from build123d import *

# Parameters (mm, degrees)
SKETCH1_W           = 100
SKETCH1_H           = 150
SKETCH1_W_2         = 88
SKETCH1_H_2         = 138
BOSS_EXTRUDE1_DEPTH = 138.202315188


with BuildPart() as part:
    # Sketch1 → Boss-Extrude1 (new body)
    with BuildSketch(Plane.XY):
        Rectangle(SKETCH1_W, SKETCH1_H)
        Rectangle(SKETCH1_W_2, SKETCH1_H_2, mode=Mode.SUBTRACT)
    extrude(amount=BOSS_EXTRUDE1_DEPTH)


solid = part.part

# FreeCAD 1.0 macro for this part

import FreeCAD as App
import Part
import Sketcher

V = App.Vector


def add_polygon(sketch, points):
    """Adds a closed chain of lines whose ends are joined by coincident constraints."""
    first, n = sketch.GeometryCount, len(points)
    for a, b in zip(points, points[1:] + points[:1]):
        sketch.addGeometry(Part.LineSegment(App.Vector(*a, 0), App.Vector(*b, 0)), False)
    for i in range(n):
        sketch.addConstraint(Sketcher.Constraint("Coincident", first + i, 2, first + (i + 1) % n, 1))

doc = App.newDocument("Part")
body = doc.addObject("PartDesign::Body", "Body")

# Sketch on XY plane
sketch1 = body.newObject("Sketcher::SketchObject", "Sketch")
sketch1.AttachmentSupport = (doc.getObject("XY_Plane"), [""])
sketch1.MapMode = "FlatFace"
add_polygon(sketch1, [(-50, 75), (-50, -75), (50, -75), (50, 75)])  # lines 0-3
add_polygon(sketch1, [(44, -69), (-44, -69), (-44, 69), (44, 69)])  # lines 4-7
sketch1.addConstraint([
    Sketcher.Constraint("Vertical", 0),
    Sketcher.Constraint("Horizontal", 1),
    Sketcher.Constraint("Vertical", 2),
    Sketcher.Constraint("Horizontal", 3),
    Sketcher.Constraint("Horizontal", 4),
    Sketcher.Constraint("Vertical", 5),
    Sketcher.Constraint("Horizontal", 6),
    Sketcher.Constraint("Vertical", 7),
    Sketcher.Constraint("Symmetric", 0, 2, 2, 2, -1, 1),
    Sketcher.Constraint("Symmetric", 4, 2, 6, 2, -1, 1),
    Sketcher.Constraint("DistanceX", 1, 1, 1, 2, 100.0),
    Sketcher.Constraint("DistanceX", 4, 2, 4, 1, 88.0),
    Sketcher.Constraint("DistanceY", 0, 2, 0, 1, 150.0),
    Sketcher.Constraint("DistanceY", 5, 1, 5, 2, 138.0),
])
pad1 = body.newObject("PartDesign::Pad", "Pad")
pad1.Profile = sketch1
pad1.Length = 138.202315

doc.recompute()
